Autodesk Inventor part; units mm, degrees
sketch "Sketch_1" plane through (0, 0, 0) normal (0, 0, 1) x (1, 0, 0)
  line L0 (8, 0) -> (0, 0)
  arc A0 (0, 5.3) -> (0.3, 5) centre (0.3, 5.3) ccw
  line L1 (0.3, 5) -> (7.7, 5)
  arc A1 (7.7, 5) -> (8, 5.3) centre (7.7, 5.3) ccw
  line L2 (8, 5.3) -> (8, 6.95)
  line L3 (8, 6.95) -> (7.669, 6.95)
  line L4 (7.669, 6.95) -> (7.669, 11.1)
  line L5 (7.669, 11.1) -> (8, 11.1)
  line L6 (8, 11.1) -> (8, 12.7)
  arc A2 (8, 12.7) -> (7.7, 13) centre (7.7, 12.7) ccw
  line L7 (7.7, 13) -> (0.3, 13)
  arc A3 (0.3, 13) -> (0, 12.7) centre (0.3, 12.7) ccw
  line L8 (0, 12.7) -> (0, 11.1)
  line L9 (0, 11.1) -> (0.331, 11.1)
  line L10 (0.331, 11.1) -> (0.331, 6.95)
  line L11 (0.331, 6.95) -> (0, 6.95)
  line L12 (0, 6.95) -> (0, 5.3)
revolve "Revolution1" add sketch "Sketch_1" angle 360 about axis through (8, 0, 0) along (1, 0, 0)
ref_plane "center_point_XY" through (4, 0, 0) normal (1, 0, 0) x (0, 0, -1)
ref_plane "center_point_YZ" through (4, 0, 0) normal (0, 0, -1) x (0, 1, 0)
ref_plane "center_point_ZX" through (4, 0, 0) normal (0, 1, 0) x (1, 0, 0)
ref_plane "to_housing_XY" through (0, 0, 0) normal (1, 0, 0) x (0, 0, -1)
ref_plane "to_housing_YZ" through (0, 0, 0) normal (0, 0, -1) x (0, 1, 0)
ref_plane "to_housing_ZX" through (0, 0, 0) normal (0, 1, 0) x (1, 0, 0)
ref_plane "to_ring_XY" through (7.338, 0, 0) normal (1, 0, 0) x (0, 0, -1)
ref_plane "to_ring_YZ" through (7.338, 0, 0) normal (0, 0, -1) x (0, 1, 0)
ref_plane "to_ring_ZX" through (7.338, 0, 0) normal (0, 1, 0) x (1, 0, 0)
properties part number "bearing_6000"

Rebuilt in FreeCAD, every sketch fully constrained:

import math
import FreeCAD as App
import Part
import Sketcher

V = App.Vector

doc = App.newDocument("Part")
body = doc.addObject("PartDesign::Body", "Body")

# Sketch on XY plane
sketch1 = body.newObject("Sketcher::SketchObject", "Sketch")
sketch1.AttachmentSupport = (doc.getObject("XY_Plane"), [""])
sketch1.MapMode = "FlatFace"
sketch1.addGeometry([
    Part.LineSegment(V(0, 6.95, 0), V(0, 5.3, 0)),  # 0
    Part.ArcOfCircle(Part.Circle(V(0.3, 5.3, 0), V(0, 0, 1), 0.3), math.radians(180), math.radians(270)),  # 1
    Part.LineSegment(V(0.3, 5, 0), V(7.7, 5, 0)),  # 2
    Part.ArcOfCircle(Part.Circle(V(7.7, 5.3, 0), V(0, 0, 1), 0.3), math.radians(-90), math.radians(0)),  # 3
    Part.LineSegment(V(8, 5.3, 0), V(8, 6.95, 0)),  # 4
    Part.LineSegment(V(8, 6.95, 0), V(7.67, 6.95, 0)),  # 5
    Part.LineSegment(V(7.67, 6.95, 0), V(7.67, 11.1, 0)),  # 6
    Part.LineSegment(V(7.67, 11.1, 0), V(8, 11.1, 0)),  # 7
    Part.LineSegment(V(8, 11.1, 0), V(8, 12.7, 0)),  # 8
    Part.ArcOfCircle(Part.Circle(V(7.7, 12.7, 0), V(0, 0, 1), 0.3), math.radians(0), math.radians(90)),  # 9
    Part.LineSegment(V(7.7, 13, 0), V(0.3, 13, 0)),  # 10
    Part.ArcOfCircle(Part.Circle(V(0.3, 12.7, 0), V(0, 0, 1), 0.3), math.radians(90), math.radians(180)),  # 11
    Part.LineSegment(V(0, 12.7, 0), V(0, 11.1, 0)),  # 12
    Part.LineSegment(V(0, 11.1, 0), V(0.33, 11.1, 0)),  # 13
    Part.LineSegment(V(0.33, 11.1, 0), V(0.33, 6.95, 0)),  # 14
    Part.LineSegment(V(0.33, 6.95, 0), V(0, 6.95, 0)),  # 15
], False)
sketch1.addConstraint([
    Sketcher.Constraint("Tangent", 0, 2, 1, 1),
    Sketcher.Constraint("Tangent", 1, 2, 2, 1),
    Sketcher.Constraint("Tangent", 2, 2, 3, 1),
    Sketcher.Constraint("Tangent", 3, 2, 4, 1),
    Sketcher.Constraint("Coincident", 4, 2, 5, 1),
    Sketcher.Constraint("Coincident", 5, 2, 6, 1),
    Sketcher.Constraint("Coincident", 6, 2, 7, 1),
    Sketcher.Constraint("Coincident", 7, 2, 8, 1),
    Sketcher.Constraint("Tangent", 8, 2, 9, 1),
    Sketcher.Constraint("Tangent", 9, 2, 10, 1),
    Sketcher.Constraint("Tangent", 10, 2, 11, 1),
    Sketcher.Constraint("Tangent", 11, 2, 12, 1),
    Sketcher.Constraint("Coincident", 12, 2, 13, 1),
    Sketcher.Constraint("Coincident", 13, 2, 14, 1),
    Sketcher.Constraint("Coincident", 14, 2, 15, 1),
    Sketcher.Constraint("Coincident", 15, 2, 0, 1),
    Sketcher.Constraint("Vertical", 0),
    Sketcher.Constraint("Horizontal", 2),
    Sketcher.Constraint("Vertical", 4),
    Sketcher.Constraint("Horizontal", 5),
    Sketcher.Constraint("Vertical", 6),
    Sketcher.Constraint("Horizontal", 7),
    Sketcher.Constraint("Vertical", 8),
    Sketcher.Constraint("Horizontal", 10),
    Sketcher.Constraint("Vertical", 12),
    Sketcher.Constraint("Horizontal", 13),
    Sketcher.Constraint("Vertical", 14),
    Sketcher.Constraint("Horizontal", 15),
    Sketcher.Constraint("Equal", 1, 3),
    Sketcher.Constraint("Equal", 3, 9),
    Sketcher.Constraint("Equal", 9, 11),
    Sketcher.Constraint("PointOnObject", 0, 2, -2),
    Sketcher.Constraint("PointOnObject", 11, 2, -2),
    Sketcher.Constraint("Horizontal", 7, 2, 12, 2),
    Sketcher.Constraint("Horizontal", 5, 2, 14, 2),
    Sketcher.Constraint("Vertical", 3, 3, 9, 3),
    Sketcher.Constraint("Equal", 7, 13),
    Sketcher.Constraint("Radius", 1, 0.3),
    Sketcher.Constraint("DistanceX", 2, 1, 2, 2, 7.4),
    Sketcher.Constraint("DistanceY", 8, 1, 8, 2, 1.6),
    Sketcher.Constraint("DistanceY", -1, 1, 1, 2, 5.0),
    Sketcher.Constraint("DistanceY", -1, 1, 9, 2, 13.0),
    Sketcher.Constraint("DistanceY", 0, 2, 0, 1, 1.65),
    Sketcher.Constraint("DistanceX", 5, 2, 5, 1, 0.331),
])
revolution = body.newObject("PartDesign::Revolution", "Revolution")
revolution.Profile = sketch1
revolution.ReferenceAxis = (sketch1, ["H_Axis"])
revolution.Angle = 360

doc.recompute()
